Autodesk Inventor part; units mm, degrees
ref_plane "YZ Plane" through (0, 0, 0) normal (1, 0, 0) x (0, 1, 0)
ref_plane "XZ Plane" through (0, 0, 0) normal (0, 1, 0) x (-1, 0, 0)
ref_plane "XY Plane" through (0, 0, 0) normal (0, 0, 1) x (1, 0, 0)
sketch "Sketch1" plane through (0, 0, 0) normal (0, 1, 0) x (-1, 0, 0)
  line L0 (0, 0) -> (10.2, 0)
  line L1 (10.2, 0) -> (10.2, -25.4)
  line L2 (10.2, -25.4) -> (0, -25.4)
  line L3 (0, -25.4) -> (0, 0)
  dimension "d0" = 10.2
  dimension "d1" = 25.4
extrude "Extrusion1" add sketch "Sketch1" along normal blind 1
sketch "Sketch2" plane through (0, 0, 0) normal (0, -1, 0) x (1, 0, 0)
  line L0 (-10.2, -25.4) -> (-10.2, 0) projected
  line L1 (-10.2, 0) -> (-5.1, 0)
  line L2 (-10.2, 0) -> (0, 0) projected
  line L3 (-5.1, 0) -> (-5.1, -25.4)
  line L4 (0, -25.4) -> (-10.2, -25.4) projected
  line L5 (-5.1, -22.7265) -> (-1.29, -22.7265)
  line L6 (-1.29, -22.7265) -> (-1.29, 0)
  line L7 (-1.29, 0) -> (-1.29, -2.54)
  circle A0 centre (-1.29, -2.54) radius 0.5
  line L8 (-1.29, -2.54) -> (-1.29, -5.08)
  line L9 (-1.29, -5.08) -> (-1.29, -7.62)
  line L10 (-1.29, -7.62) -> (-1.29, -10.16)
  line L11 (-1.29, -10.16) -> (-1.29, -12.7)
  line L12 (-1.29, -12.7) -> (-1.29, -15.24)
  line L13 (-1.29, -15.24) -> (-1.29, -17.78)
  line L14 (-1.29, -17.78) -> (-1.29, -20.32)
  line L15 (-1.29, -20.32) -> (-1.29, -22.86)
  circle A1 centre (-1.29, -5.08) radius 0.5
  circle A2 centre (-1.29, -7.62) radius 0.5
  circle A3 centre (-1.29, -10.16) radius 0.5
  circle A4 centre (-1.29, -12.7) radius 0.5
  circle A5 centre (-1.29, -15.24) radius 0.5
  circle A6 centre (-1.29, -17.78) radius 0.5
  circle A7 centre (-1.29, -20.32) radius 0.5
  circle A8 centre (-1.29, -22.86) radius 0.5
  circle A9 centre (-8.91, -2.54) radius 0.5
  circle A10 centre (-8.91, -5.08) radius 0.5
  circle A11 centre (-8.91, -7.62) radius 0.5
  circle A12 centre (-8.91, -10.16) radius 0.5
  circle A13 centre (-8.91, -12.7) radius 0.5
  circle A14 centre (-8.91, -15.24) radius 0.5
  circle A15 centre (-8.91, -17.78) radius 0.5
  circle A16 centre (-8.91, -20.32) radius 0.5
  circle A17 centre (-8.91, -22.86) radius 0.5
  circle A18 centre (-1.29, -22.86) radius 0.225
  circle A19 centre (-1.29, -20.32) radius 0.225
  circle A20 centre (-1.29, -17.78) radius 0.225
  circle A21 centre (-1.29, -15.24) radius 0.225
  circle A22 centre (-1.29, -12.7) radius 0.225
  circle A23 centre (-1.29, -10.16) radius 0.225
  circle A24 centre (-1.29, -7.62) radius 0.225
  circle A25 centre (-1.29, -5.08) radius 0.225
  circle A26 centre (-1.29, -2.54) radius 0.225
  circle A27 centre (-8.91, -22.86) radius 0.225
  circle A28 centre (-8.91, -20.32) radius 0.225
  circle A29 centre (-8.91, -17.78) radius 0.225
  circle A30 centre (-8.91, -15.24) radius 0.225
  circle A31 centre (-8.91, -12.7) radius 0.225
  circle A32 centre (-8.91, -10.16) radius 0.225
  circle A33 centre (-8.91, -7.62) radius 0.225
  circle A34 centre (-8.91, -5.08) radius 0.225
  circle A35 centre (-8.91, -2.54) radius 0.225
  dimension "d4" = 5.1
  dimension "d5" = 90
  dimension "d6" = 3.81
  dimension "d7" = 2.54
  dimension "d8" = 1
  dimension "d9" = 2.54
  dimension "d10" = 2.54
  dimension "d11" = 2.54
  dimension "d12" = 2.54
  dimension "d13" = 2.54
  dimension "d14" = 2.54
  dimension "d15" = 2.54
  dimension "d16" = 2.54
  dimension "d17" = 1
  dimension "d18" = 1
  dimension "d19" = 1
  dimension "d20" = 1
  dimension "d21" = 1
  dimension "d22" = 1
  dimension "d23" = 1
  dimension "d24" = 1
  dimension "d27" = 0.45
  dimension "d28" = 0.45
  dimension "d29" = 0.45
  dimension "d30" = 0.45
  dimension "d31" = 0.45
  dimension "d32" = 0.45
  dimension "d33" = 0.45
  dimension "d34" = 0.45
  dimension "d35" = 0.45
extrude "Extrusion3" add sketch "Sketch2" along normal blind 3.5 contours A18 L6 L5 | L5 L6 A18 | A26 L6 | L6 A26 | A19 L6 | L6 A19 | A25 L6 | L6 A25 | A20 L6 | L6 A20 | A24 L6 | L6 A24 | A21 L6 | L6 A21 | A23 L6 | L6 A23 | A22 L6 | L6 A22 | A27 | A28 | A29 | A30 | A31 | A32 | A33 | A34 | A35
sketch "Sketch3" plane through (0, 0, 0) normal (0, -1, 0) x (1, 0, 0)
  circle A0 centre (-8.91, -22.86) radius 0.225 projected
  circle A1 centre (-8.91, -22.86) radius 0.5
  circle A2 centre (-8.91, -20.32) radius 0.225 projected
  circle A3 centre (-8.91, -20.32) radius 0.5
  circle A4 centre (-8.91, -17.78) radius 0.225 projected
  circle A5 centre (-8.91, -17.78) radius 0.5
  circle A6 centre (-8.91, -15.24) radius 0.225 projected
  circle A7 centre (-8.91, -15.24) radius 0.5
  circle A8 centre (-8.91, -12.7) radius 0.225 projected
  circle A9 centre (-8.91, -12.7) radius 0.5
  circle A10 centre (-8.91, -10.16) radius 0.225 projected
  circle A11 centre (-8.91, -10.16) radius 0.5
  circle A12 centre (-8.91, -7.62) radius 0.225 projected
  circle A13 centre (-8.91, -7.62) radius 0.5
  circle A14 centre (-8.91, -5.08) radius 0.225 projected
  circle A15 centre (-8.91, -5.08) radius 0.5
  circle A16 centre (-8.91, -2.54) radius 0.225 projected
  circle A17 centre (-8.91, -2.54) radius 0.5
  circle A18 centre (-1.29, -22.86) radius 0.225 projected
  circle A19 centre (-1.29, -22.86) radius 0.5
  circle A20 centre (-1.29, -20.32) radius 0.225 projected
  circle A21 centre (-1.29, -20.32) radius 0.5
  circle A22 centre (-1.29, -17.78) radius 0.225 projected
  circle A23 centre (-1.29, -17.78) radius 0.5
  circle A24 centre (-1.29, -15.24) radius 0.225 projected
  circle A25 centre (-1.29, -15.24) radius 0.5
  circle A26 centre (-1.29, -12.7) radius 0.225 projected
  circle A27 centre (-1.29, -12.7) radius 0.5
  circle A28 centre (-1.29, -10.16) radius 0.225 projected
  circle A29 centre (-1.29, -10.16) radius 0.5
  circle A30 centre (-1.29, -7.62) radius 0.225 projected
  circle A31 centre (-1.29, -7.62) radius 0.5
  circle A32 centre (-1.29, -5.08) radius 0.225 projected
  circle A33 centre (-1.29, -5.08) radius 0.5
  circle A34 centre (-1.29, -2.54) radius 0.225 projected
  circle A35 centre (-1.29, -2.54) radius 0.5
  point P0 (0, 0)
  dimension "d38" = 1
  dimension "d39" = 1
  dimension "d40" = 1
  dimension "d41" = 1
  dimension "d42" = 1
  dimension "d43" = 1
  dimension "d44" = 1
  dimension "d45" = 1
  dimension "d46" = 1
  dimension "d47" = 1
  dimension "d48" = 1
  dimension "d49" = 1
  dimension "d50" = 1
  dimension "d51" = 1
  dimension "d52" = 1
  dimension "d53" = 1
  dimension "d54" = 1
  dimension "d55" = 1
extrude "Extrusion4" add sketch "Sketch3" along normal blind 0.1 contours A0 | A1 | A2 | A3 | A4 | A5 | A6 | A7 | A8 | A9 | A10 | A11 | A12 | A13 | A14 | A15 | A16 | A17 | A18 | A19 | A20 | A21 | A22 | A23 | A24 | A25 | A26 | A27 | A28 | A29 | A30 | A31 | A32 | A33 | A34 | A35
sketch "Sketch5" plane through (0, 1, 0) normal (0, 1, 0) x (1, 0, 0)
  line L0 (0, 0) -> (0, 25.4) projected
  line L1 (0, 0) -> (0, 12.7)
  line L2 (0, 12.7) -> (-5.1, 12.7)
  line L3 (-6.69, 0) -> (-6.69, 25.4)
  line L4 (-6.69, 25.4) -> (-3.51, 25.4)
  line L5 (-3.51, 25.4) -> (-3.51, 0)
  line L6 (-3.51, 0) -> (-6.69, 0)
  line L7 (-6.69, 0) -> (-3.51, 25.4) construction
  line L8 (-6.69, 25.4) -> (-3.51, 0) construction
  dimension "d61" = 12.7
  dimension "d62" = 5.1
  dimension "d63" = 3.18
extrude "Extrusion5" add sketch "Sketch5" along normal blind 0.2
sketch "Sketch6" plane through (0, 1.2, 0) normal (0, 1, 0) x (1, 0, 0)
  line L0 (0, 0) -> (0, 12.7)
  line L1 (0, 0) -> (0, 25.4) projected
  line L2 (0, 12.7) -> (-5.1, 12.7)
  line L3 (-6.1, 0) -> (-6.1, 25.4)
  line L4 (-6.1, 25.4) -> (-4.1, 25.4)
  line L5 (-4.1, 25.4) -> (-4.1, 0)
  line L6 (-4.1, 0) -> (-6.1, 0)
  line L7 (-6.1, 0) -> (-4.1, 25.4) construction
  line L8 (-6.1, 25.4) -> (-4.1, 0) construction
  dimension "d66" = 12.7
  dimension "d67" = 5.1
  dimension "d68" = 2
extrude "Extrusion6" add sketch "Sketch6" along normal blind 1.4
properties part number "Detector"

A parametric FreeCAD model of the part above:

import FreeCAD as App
import Part
import Sketcher
from FreeCAD import Vector

doc = App.newDocument("Part")
body = doc.addObject("PartDesign::Body", "Body")

# Sketch on XZ plane
sketch1 = doc.addObject("Sketcher::SketchObject", "Sketch")
body.addObject(sketch1)
sketch1.AttachmentSupport = (doc.XZ_Plane, [""])
sketch1.MapMode = "FlatFace"
sketch1.addGeometry([
    Part.LineSegment(Vector(-10, 0, 0), Vector(0, 0, 0)),
    Part.LineSegment(Vector(0, 0, 0), Vector(0, -25, 0)),
    Part.LineSegment(Vector(0, -25, 0), Vector(-10, -25, 0)),
    Part.LineSegment(Vector(-10, -25, 0), Vector(-10, 0, 0)),
], False)
sketch1.addConstraint([
    Sketcher.Constraint("Coincident", 0, 2, 1, 1),
    Sketcher.Constraint("Coincident", 1, 2, 2, 1),
    Sketcher.Constraint("Coincident", 2, 2, 3, 1),
    Sketcher.Constraint("Coincident", 3, 2, 0, 1),
    Sketcher.Constraint("Horizontal", 0),
    Sketcher.Constraint("Vertical", 1),
    Sketcher.Constraint("Horizontal", 2),
    Sketcher.Constraint("Vertical", 3),
    Sketcher.Constraint("Coincident", 0, 2, -1, 1),
    Sketcher.Constraint("DistanceX", 0, 1, 0, 2, 10.2),
    Sketcher.Constraint("DistanceY", 1, 2, 1, 1, 25.4),
])
pad1 = doc.addObject("PartDesign::Pad", "Pad")
body.addObject(pad1)
pad1.Profile = sketch1
pad1.Length = 1
pad1.Reversed = True

# Sketch on XZ plane
sketch2 = doc.addObject("Sketcher::SketchObject", "Sketch001")
body.addObject(sketch2)
sketch2.AttachmentSupport = (doc.XZ_Plane, [""])
sketch2.MapMode = "FlatFace"
sketch2.addGeometry([
    Part.Circle(Vector(-1.29, -22.86, 0), Vector(0, 0, 1), 0.23),  # 0
    Part.Circle(Vector(-1.29, -2.54, 0), Vector(0, 0, 1), 0.23),  # 1
    Part.Circle(Vector(-1.29, -20.32, 0), Vector(0, 0, 1), 0.23),  # 2
    Part.Circle(Vector(-1.29, -5.08, 0), Vector(0, 0, 1), 0.23),  # 3
    Part.Circle(Vector(-1.29, -17.78, 0), Vector(0, 0, 1), 0.23),  # 4
    Part.Circle(Vector(-1.29, -7.62, 0), Vector(0, 0, 1), 0.23),  # 5
    Part.Circle(Vector(-1.29, -15.24, 0), Vector(0, 0, 1), 0.23),  # 6
    Part.Circle(Vector(-1.29, -10.16, 0), Vector(0, 0, 1), 0.23),  # 7
    Part.Circle(Vector(-1.29, -12.7, 0), Vector(0, 0, 1), 0.23),  # 8
    Part.Circle(Vector(-8.91, -22.86, 0), Vector(0, 0, 1), 0.23),  # 9
    Part.Circle(Vector(-8.91, -20.32, 0), Vector(0, 0, 1), 0.23),  # 10
    Part.Circle(Vector(-8.91, -17.78, 0), Vector(0, 0, 1), 0.23),  # 11
    Part.Circle(Vector(-8.91, -15.24, 0), Vector(0, 0, 1), 0.23),  # 12
    Part.Circle(Vector(-8.91, -12.7, 0), Vector(0, 0, 1), 0.23),  # 13
    Part.Circle(Vector(-8.91, -10.16, 0), Vector(0, 0, 1), 0.23),  # 14
    Part.Circle(Vector(-8.91, -7.62, 0), Vector(0, 0, 1), 0.23),  # 15
    Part.Circle(Vector(-8.91, -5.08, 0), Vector(0, 0, 1), 0.23),  # 16
    Part.Circle(Vector(-8.91, -2.54, 0), Vector(0, 0, 1), 0.23),  # 17
], False)
sketch2.addConstraint([
    Sketcher.Constraint("Equal", 0, 1),
    Sketcher.Constraint("Equal", 1, 2),
    Sketcher.Constraint("Equal", 2, 3),
    Sketcher.Constraint("Equal", 3, 4),
    Sketcher.Constraint("Equal", 4, 5),
    Sketcher.Constraint("Equal", 5, 6),
    Sketcher.Constraint("Equal", 6, 7),
    Sketcher.Constraint("Equal", 7, 8),
    Sketcher.Constraint("Equal", 8, 9),
    Sketcher.Constraint("Equal", 9, 10),
    Sketcher.Constraint("Equal", 10, 11),
    Sketcher.Constraint("Equal", 11, 12),
    Sketcher.Constraint("Equal", 12, 13),
    Sketcher.Constraint("Equal", 13, 14),
    Sketcher.Constraint("Equal", 14, 15),
    Sketcher.Constraint("Equal", 15, 16),
    Sketcher.Constraint("Equal", 16, 17),
    Sketcher.Constraint("Horizontal", 0, 3, 9, 3),
    Sketcher.Constraint("Horizontal", 2, 3, 10, 3),
    Sketcher.Constraint("Horizontal", 4, 3, 11, 3),
    Sketcher.Constraint("Horizontal", 6, 3, 12, 3),
    Sketcher.Constraint("Horizontal", 8, 3, 13, 3),
    Sketcher.Constraint("Horizontal", 7, 3, 14, 3),
    Sketcher.Constraint("Horizontal", 5, 3, 15, 3),
    Sketcher.Constraint("Horizontal", 3, 3, 16, 3),
    Sketcher.Constraint("Horizontal", 1, 3, 17, 3),
    Sketcher.Constraint("Vertical", 0, 3, 1, 3),
    Sketcher.Constraint("Vertical", 1, 3, 2, 3),
    Sketcher.Constraint("Vertical", 2, 3, 3, 3),
    Sketcher.Constraint("Vertical", 3, 3, 4, 3),
    Sketcher.Constraint("Vertical", 4, 3, 5, 3),
    Sketcher.Constraint("Vertical", 5, 3, 6, 3),
    Sketcher.Constraint("Vertical", 6, 3, 7, 3),
    Sketcher.Constraint("Vertical", 7, 3, 8, 3),
    Sketcher.Constraint("Vertical", 9, 3, 10, 3),
    Sketcher.Constraint("Vertical", 10, 3, 11, 3),
    Sketcher.Constraint("Vertical", 11, 3, 12, 3),
    Sketcher.Constraint("Vertical", 12, 3, 13, 3),
    Sketcher.Constraint("Vertical", 13, 3, 14, 3),
    Sketcher.Constraint("Vertical", 14, 3, 15, 3),
    Sketcher.Constraint("Vertical", 15, 3, 16, 3),
    Sketcher.Constraint("Vertical", 16, 3, 17, 3),
    Sketcher.Constraint("Diameter", 0, 0.45),
    Sketcher.Constraint("DistanceY", 1, 3, -1, 1, 2.54),
    Sketcher.Constraint("DistanceY", 0, 3, 2, 3, 2.54),
    Sketcher.Constraint("DistanceY", 3, 3, 1, 3, 2.54),
    Sketcher.Constraint("DistanceY", 2, 3, 4, 3, 2.54),
    Sketcher.Constraint("DistanceY", 5, 3, 3, 3, 2.54),
    Sketcher.Constraint("DistanceY", 4, 3, 6, 3, 2.54),
    Sketcher.Constraint("DistanceY", 7, 3, 5, 3, 2.54),
    Sketcher.Constraint("DistanceY", 8, 3, 7, 3, 2.54),
    Sketcher.Constraint("DistanceY", 6, 3, 8, 3, 2.54),
    Sketcher.Constraint("DistanceX", 0, 3, -1, 1, 1.29),
    Sketcher.Constraint("DistanceX", 9, 3, -1, 1, 8.91),
])
pad2 = doc.addObject("PartDesign::Pad", "Pad001")
body.addObject(pad2)
pad2.Profile = sketch2
pad2.Length = 3.5

# Sketch on XZ plane
sketch3 = doc.addObject("Sketcher::SketchObject", "Sketch002")
body.addObject(sketch3)
sketch3.AttachmentSupport = (doc.XZ_Plane, [""])
sketch3.MapMode = "FlatFace"
sketch3.addGeometry([
    Part.Circle(Vector(-8.9, -22.9, 0), Vector(0, 0, 1), 0.5),  # 0
    Part.Circle(Vector(-8.9, -20.3, 0), Vector(0, 0, 1), 0.5),  # 1
    Part.Circle(Vector(-8.9, -17.8, 0), Vector(0, 0, 1), 0.5),  # 2
    Part.Circle(Vector(-8.9, -15.2, 0), Vector(0, 0, 1), 0.5),  # 3
    Part.Circle(Vector(-8.9, -12.7, 0), Vector(0, 0, 1), 0.5),  # 4
    Part.Circle(Vector(-8.9, -10.2, 0), Vector(0, 0, 1), 0.5),  # 5
    Part.Circle(Vector(-8.9, -7.6, 0), Vector(0, 0, 1), 0.5),  # 6
    Part.Circle(Vector(-8.9, -5.1, 0), Vector(0, 0, 1), 0.5),  # 7
    Part.Circle(Vector(-8.9, -2.5, 0), Vector(0, 0, 1), 0.5),  # 8
    Part.Circle(Vector(-1.3, -22.9, 0), Vector(0, 0, 1), 0.5),  # 9
    Part.Circle(Vector(-1.3, -20.3, 0), Vector(0, 0, 1), 0.5),  # 10
    Part.Circle(Vector(-1.3, -17.8, 0), Vector(0, 0, 1), 0.5),  # 11
    Part.Circle(Vector(-1.3, -15.2, 0), Vector(0, 0, 1), 0.5),  # 12
    Part.Circle(Vector(-1.3, -12.7, 0), Vector(0, 0, 1), 0.5),  # 13
    Part.Circle(Vector(-1.3, -10.2, 0), Vector(0, 0, 1), 0.5),  # 14
    Part.Circle(Vector(-1.3, -7.6, 0), Vector(0, 0, 1), 0.5),  # 15
    Part.Circle(Vector(-1.3, -5.1, 0), Vector(0, 0, 1), 0.5),  # 16
    Part.Circle(Vector(-1.3, -2.5, 0), Vector(0, 0, 1), 0.5),  # 17
], False)
sketch3.addConstraint([
    Sketcher.Constraint("Equal", 0, 1),
    Sketcher.Constraint("Equal", 1, 2),
    Sketcher.Constraint("Equal", 2, 3),
    Sketcher.Constraint("Equal", 3, 4),
    Sketcher.Constraint("Equal", 4, 5),
    Sketcher.Constraint("Equal", 5, 6),
    Sketcher.Constraint("Equal", 6, 7),
    Sketcher.Constraint("Equal", 7, 8),
    Sketcher.Constraint("Equal", 8, 9),
    Sketcher.Constraint("Equal", 9, 10),
    Sketcher.Constraint("Equal", 10, 11),
    Sketcher.Constraint("Equal", 11, 12),
    Sketcher.Constraint("Equal", 12, 13),
    Sketcher.Constraint("Equal", 13, 14),
    Sketcher.Constraint("Equal", 14, 15),
    Sketcher.Constraint("Equal", 15, 16),
    Sketcher.Constraint("Equal", 16, 17),
    Sketcher.Constraint("Horizontal", 0, 3, 9, 3),
    Sketcher.Constraint("Horizontal", 1, 3, 10, 3),
    Sketcher.Constraint("Horizontal", 2, 3, 11, 3),
    Sketcher.Constraint("Horizontal", 3, 3, 12, 3),
    Sketcher.Constraint("Horizontal", 4, 3, 13, 3),
    Sketcher.Constraint("Horizontal", 5, 3, 14, 3),
    Sketcher.Constraint("Horizontal", 6, 3, 15, 3),
    Sketcher.Constraint("Horizontal", 7, 3, 16, 3),
    Sketcher.Constraint("Horizontal", 8, 3, 17, 3),
    Sketcher.Constraint("Vertical", 0, 3, 1, 3),
    Sketcher.Constraint("Vertical", 1, 3, 2, 3),
    Sketcher.Constraint("Vertical", 2, 3, 3, 3),
    Sketcher.Constraint("Vertical", 3, 3, 4, 3),
    Sketcher.Constraint("Vertical", 4, 3, 5, 3),
    Sketcher.Constraint("Vertical", 5, 3, 6, 3),
    Sketcher.Constraint("Vertical", 6, 3, 7, 3),
    Sketcher.Constraint("Vertical", 7, 3, 8, 3),
    Sketcher.Constraint("Vertical", 9, 3, 10, 3),
    Sketcher.Constraint("Vertical", 10, 3, 11, 3),
    Sketcher.Constraint("Vertical", 11, 3, 12, 3),
    Sketcher.Constraint("Vertical", 12, 3, 13, 3),
    Sketcher.Constraint("Vertical", 13, 3, 14, 3),
    Sketcher.Constraint("Vertical", 14, 3, 15, 3),
    Sketcher.Constraint("Vertical", 15, 3, 16, 3),
    Sketcher.Constraint("Vertical", 16, 3, 17, 3),
    Sketcher.Constraint("Diameter", 0, 1.0),
    Sketcher.Constraint("DistanceY", 4, 3, -1, 1, 12.7),
    Sketcher.Constraint("DistanceY", 0, 3, 5, 3, 12.7),
    Sketcher.Constraint("DistanceY", 1, 3, 6, 3, 12.7),
    Sketcher.Constraint("DistanceY", 2, 3, 7, 3, 12.7),
    Sketcher.Constraint("DistanceY", 3, 3, 8, 3, 12.7),
    Sketcher.Constraint("DistanceX", 0, 3, -1, 1, 8.91),
    Sketcher.Constraint("DistanceY", 0, 3, -1, 1, 22.86),
    Sketcher.Constraint("DistanceY", 1, 3, -1, 1, 20.32),
    Sketcher.Constraint("DistanceY", 2, 3, -1, 1, 17.78),
    Sketcher.Constraint("DistanceY", 3, 3, -1, 1, 15.24),
    Sketcher.Constraint("DistanceX", 9, 3, -1, 1, 1.29),
])
pad3 = doc.addObject("PartDesign::Pad", "Pad002")
body.addObject(pad3)
pad3.Profile = sketch3
pad3.Length = 0.1

# Sketch on XZ plane
sketch4 = doc.addObject("Sketcher::SketchObject", "Sketch003")
body.addObject(sketch4)
sketch4.AttachmentSupport = (doc.XZ_Plane, [""])
sketch4.MapMode = "FlatFace"
sketch4.AttachmentOffset = App.Placement(Vector(0, 0, -1), App.Rotation())
sketch4.addGeometry([
    Part.LineSegment(Vector(-6.7, -25.4, 0), Vector(-6.7, 0, 0)),
    Part.LineSegment(Vector(-6.7, 0, 0), Vector(-3.5, 0, 0)),
    Part.LineSegment(Vector(-3.5, 0, 0), Vector(-3.5, -25.4, 0)),
    Part.LineSegment(Vector(-3.5, -25.4, 0), Vector(-6.7, -25.4, 0)),
], False)
sketch4.addConstraint([
    Sketcher.Constraint("Coincident", 0, 2, 1, 1),
    Sketcher.Constraint("Coincident", 1, 2, 2, 1),
    Sketcher.Constraint("Coincident", 2, 2, 3, 1),
    Sketcher.Constraint("Coincident", 3, 2, 0, 1),
    Sketcher.Constraint("Vertical", 0),
    Sketcher.Constraint("Horizontal", 1),
    Sketcher.Constraint("Vertical", 2),
    Sketcher.Constraint("Horizontal", 3),
    Sketcher.Constraint("PointOnObject", 0, 2, -1),
    Sketcher.Constraint("DistanceX", 1, 1, 1, 2, 3.18),
    Sketcher.Constraint("DistanceY", 0, 1, 0, 2, 25.4),
    Sketcher.Constraint("DistanceX", 0, 2, -1, 1, 6.69),
])
pad4 = doc.addObject("PartDesign::Pad", "Pad003")
body.addObject(pad4)
pad4.Profile = sketch4
pad4.Length = 0.2
pad4.Reversed = True

# Sketch on XZ plane
sketch5 = doc.addObject("Sketcher::SketchObject", "Sketch004")
body.addObject(sketch5)
sketch5.AttachmentSupport = (doc.XZ_Plane, [""])
sketch5.MapMode = "FlatFace"
sketch5.AttachmentOffset = App.Placement(Vector(0, 0, -1.2), App.Rotation())
sketch5.addGeometry([
    Part.LineSegment(Vector(-6.1, -25.4, 0), Vector(-6.1, 0, 0)),
    Part.LineSegment(Vector(-6.1, 0, 0), Vector(-4.1, 0, 0)),
    Part.LineSegment(Vector(-4.1, 0, 0), Vector(-4.1, -25.4, 0)),
    Part.LineSegment(Vector(-4.1, -25.4, 0), Vector(-6.1, -25.4, 0)),
], False)
sketch5.addConstraint([
    Sketcher.Constraint("Coincident", 0, 2, 1, 1),
    Sketcher.Constraint("Coincident", 1, 2, 2, 1),
    Sketcher.Constraint("Coincident", 2, 2, 3, 1),
    Sketcher.Constraint("Coincident", 3, 2, 0, 1),
    Sketcher.Constraint("Vertical", 0),
    Sketcher.Constraint("Horizontal", 1),
    Sketcher.Constraint("Vertical", 2),
    Sketcher.Constraint("Horizontal", 3),
    Sketcher.Constraint("PointOnObject", 0, 2, -1),
    Sketcher.Constraint("DistanceX", 1, 1, 1, 2, 2.0),
    Sketcher.Constraint("DistanceY", 0, 1, 0, 2, 25.4),
    Sketcher.Constraint("DistanceX", 0, 2, -1, 1, 6.1),
])
pad5 = doc.addObject("PartDesign::Pad", "Pad004")
body.addObject(pad5)
pad5.Profile = sketch5
pad5.Length = 1.4
pad5.Reversed = True

doc.recompute()
